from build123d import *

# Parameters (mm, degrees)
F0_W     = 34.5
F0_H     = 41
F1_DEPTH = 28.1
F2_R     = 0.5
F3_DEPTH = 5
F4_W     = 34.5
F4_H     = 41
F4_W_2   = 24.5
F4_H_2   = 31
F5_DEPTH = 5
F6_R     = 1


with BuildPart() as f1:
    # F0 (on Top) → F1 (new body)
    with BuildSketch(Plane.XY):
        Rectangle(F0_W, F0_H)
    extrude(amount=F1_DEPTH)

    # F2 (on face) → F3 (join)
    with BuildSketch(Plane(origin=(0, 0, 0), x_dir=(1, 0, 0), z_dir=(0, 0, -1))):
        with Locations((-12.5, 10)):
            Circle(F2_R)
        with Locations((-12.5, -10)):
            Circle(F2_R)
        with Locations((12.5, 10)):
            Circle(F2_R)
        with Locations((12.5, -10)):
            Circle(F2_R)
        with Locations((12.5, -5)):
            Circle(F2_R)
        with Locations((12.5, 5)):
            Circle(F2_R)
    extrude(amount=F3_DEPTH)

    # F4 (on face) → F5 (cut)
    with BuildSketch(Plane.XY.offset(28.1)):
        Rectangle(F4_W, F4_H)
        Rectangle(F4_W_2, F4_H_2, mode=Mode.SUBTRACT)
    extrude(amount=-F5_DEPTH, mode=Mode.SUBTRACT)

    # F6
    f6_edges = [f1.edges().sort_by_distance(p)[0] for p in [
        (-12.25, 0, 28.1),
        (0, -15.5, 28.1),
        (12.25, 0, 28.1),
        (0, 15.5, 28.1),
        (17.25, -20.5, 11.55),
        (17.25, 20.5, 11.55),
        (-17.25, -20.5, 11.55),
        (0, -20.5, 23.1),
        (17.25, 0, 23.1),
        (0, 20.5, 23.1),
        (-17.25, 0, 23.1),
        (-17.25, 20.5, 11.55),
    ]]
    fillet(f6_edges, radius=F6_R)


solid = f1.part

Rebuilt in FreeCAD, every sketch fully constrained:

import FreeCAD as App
import Part
import Sketcher

V = App.Vector
Q = App.Units.Quantity


def edges_at(feature, points):
    """Names of the edges that pass closest to the given points."""
    edges = feature.Shape.Edges
    near = lambda p: min(range(len(edges)), key=lambda i: edges[i].distToShape(Part.Vertex(*p))[0])
    return sorted({f"Edge{near(p) + 1}" for p in points})


def add_polygon(sketch, points):
    """Adds a closed chain of lines whose ends are joined by coincident constraints."""
    first, n = sketch.GeometryCount, len(points)
    for a, b in zip(points, points[1:] + points[:1]):
        sketch.addGeometry(Part.LineSegment(App.Vector(*a, 0), App.Vector(*b, 0)), False)
    for i in range(n):
        sketch.addConstraint(Sketcher.Constraint("Coincident", first + i, 2, first + (i + 1) % n, 1))

doc = App.newDocument("Part")
body = doc.addObject("PartDesign::Body", "Body")

# Sketch on XY plane
sketch1 = body.newObject("Sketcher::SketchObject", "Sketch")
sketch1.AttachmentSupport = (doc.getObject("XY_Plane"), [""])
sketch1.MapMode = "FlatFace"
add_polygon(sketch1, [(-17.25, 20.5), (-17.25, -20.5), (17.25, -20.5), (17.25, 20.5)])  # lines 0-3
sketch1.addConstraint([
    Sketcher.Constraint("Vertical", 0),
    Sketcher.Constraint("Horizontal", 1),
    Sketcher.Constraint("Vertical", 2),
    Sketcher.Constraint("Horizontal", 3),
    Sketcher.Constraint("Symmetric", 0, 2, 2, 2, -1, 1),
    Sketcher.Constraint("DistanceY", 0, 2, 0, 1, Q("41 mm")),
    Sketcher.Constraint("DistanceX", 1, 1, 1, 2, Q("34.5 mm")),
])
pad1 = body.newObject("PartDesign::Pad", "Pad")
pad1.Profile = sketch1
pad1.Length = 28.1

# Sketch on XY plane
sketch2 = body.newObject("Sketcher::SketchObject", "Sketch001")
sketch2.AttachmentSupport = (doc.getObject("XY_Plane"), [""])
sketch2.MapMode = "FlatFace"
sketch2.addGeometry([
    Part.Circle(V(-12.5, -10, 0), V(0, 0, 1), 0.5),  # 0
    Part.Circle(V(-12.5, 10, 0), V(0, 0, 1), 0.5),  # 1
    Part.Circle(V(12.5, -10, 0), V(0, 0, 1), 0.5),  # 2
    Part.Circle(V(12.5, 10, 0), V(0, 0, 1), 0.5),  # 3
    Part.Circle(V(12.5, 5, 0), V(0, 0, 1), 0.5),  # 4
    Part.Circle(V(12.5, -5, 0), V(0, 0, 1), 0.5),  # 5
], False)
sketch2.addConstraint([
    Sketcher.Constraint("Equal", 0, 1),
    Sketcher.Constraint("Equal", 1, 2),
    Sketcher.Constraint("Equal", 2, 3),
    Sketcher.Constraint("Equal", 3, 4),
    Sketcher.Constraint("Equal", 4, 5),
    Sketcher.Constraint("Symmetric", 1, 3, 2, 3, -1, 1),
    Sketcher.Constraint("Symmetric", 0, 3, 3, 3, -1, 1),
    Sketcher.Constraint("Symmetric", 0, 3, 2, 3, -2),
    Sketcher.Constraint("Symmetric", 4, 3, 5, 3, -1),
    Sketcher.Constraint("Vertical", 3, 3, 4, 3),
    Sketcher.Constraint("Diameter", 0, Q("1 mm")),
    Sketcher.Constraint("DistanceY", 0, 3, -1, 1, Q("10 mm")),
    Sketcher.Constraint("DistanceY", -1, 1, 4, 3, Q("5 mm")),
    Sketcher.Constraint("DistanceX", 0, 3, 2, 3, Q("25 mm")),
])
pad2 = body.newObject("PartDesign::Pad", "Pad001")
pad2.Profile = sketch2
pad2.Length = 5
pad2.Reversed = True

# Sketch on XY plane
sketch3 = body.newObject("Sketcher::SketchObject", "Sketch002")
sketch3.AttachmentSupport = (doc.getObject("XY_Plane"), [""])
sketch3.MapMode = "FlatFace"
sketch3.AttachmentOffset = App.Placement(V(0, 0, 28.1), App.Rotation())
add_polygon(sketch3, [(-17.25, 20.5), (-17.25, -20.5), (17.25, -20.5), (17.25, 20.5)])  # lines 0-3
add_polygon(sketch3, [(12.25, -15.5), (-12.25, -15.5), (-12.25, 15.5), (12.25, 15.5)])  # lines 4-7
sketch3.addConstraint([
    Sketcher.Constraint("Vertical", 0),
    Sketcher.Constraint("Horizontal", 1),
    Sketcher.Constraint("Vertical", 2),
    Sketcher.Constraint("Horizontal", 3),
    Sketcher.Constraint("Horizontal", 4),
    Sketcher.Constraint("Vertical", 5),
    Sketcher.Constraint("Horizontal", 6),
    Sketcher.Constraint("Vertical", 7),
    Sketcher.Constraint("Symmetric", 0, 2, 2, 2, -1, 1),
    Sketcher.Constraint("Symmetric", 4, 2, 6, 2, -1, 1),
    Sketcher.Constraint("DistanceY", 0, 2, 0, 1, Q("41 mm")),
    Sketcher.Constraint("DistanceY", 5, 1, 5, 2, Q("31 mm")),
    Sketcher.Constraint("DistanceX", 1, 1, 1, 2, Q("34.5 mm")),
    Sketcher.Constraint("DistanceX", 4, 2, 4, 1, Q("24.5 mm")),
])
pocket1 = body.newObject("PartDesign::Pocket", "Pocket")
pocket1.Profile = sketch3
pocket1.Length = 5
doc.recompute()

fillet = body.newObject("PartDesign::Fillet", "Fillet")
fillet.Base = (pocket1, edges_at(pocket1, [
    (-12.25, 0, 28.1),
    (0, -15.5, 28.1),
    (12.25, 0, 28.1),
    (0, 15.5, 28.1),
    (17.25, -20.5, 11.55),
    (17.25, 20.5, 11.55),
    (-17.25, -20.5, 11.55),
    (0, -20.5, 23.1),
    (17.25, 0, 23.1),
    (0, 20.5, 23.1),
    (-17.25, 0, 23.1),
    (-17.25, 20.5, 11.55),
]))
fillet.Radius = 1

doc.recompute()
